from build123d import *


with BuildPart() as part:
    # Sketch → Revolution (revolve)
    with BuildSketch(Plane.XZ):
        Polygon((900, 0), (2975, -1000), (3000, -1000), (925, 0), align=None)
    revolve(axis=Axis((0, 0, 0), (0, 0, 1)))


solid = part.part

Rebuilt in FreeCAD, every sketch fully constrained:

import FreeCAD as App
import Part
import Sketcher

V = App.Vector

doc = App.newDocument("Part")
body = doc.addObject("PartDesign::Body", "Body")

# Sketch on XZ plane
sketch1 = doc.addObject("Sketcher::SketchObject", "Sketch")
body.addObject(sketch1)
sketch1.AttachmentSupport = (doc.XZ_Plane, [""])
sketch1.MapMode = "FlatFace"
sketch1.addGeometry([
    Part.LineSegment(V(900, 0, 0), V(2975, -1000, 0)),
    Part.LineSegment(V(2975, -1000, 0), V(3000, -1000, 0)),
    Part.LineSegment(V(3000, -1000, 0), V(925, 0, 0)),
    Part.LineSegment(V(925, 0, 0), V(900, 0, 0)),
], False)
sketch1.addConstraint([
    Sketcher.Constraint("Coincident", 0, 2, 1, 1),
    Sketcher.Constraint("Coincident", 1, 2, 2, 1),
    Sketcher.Constraint("Coincident", 2, 2, 3, 1),
    Sketcher.Constraint("Coincident", 3, 2, 0, 1),
    Sketcher.Constraint("Horizontal", 1),
    Sketcher.Constraint("Horizontal", 3),
    Sketcher.Constraint("PointOnObject", 2, 2, -1),
    Sketcher.Constraint("Parallel", 0, 2),
    Sketcher.Constraint("DistanceX", 1, 1, 1, 2, 25.0),
    Sketcher.Constraint("DistanceX", -1, 1, 0, 2, 2975.0),
    Sketcher.Constraint("DistanceY", 0, 2, -1, 1, 1000.0),
    Sketcher.Constraint("DistanceX", -1, 1, 2, 2, 925.0),
])
revolution = doc.addObject("PartDesign::Revolution", "Revolution")
body.addObject(revolution)
revolution.Profile = sketch1
revolution.ReferenceAxis = (sketch1, ["V_Axis"])
revolution.Angle = 360

doc.recompute()
